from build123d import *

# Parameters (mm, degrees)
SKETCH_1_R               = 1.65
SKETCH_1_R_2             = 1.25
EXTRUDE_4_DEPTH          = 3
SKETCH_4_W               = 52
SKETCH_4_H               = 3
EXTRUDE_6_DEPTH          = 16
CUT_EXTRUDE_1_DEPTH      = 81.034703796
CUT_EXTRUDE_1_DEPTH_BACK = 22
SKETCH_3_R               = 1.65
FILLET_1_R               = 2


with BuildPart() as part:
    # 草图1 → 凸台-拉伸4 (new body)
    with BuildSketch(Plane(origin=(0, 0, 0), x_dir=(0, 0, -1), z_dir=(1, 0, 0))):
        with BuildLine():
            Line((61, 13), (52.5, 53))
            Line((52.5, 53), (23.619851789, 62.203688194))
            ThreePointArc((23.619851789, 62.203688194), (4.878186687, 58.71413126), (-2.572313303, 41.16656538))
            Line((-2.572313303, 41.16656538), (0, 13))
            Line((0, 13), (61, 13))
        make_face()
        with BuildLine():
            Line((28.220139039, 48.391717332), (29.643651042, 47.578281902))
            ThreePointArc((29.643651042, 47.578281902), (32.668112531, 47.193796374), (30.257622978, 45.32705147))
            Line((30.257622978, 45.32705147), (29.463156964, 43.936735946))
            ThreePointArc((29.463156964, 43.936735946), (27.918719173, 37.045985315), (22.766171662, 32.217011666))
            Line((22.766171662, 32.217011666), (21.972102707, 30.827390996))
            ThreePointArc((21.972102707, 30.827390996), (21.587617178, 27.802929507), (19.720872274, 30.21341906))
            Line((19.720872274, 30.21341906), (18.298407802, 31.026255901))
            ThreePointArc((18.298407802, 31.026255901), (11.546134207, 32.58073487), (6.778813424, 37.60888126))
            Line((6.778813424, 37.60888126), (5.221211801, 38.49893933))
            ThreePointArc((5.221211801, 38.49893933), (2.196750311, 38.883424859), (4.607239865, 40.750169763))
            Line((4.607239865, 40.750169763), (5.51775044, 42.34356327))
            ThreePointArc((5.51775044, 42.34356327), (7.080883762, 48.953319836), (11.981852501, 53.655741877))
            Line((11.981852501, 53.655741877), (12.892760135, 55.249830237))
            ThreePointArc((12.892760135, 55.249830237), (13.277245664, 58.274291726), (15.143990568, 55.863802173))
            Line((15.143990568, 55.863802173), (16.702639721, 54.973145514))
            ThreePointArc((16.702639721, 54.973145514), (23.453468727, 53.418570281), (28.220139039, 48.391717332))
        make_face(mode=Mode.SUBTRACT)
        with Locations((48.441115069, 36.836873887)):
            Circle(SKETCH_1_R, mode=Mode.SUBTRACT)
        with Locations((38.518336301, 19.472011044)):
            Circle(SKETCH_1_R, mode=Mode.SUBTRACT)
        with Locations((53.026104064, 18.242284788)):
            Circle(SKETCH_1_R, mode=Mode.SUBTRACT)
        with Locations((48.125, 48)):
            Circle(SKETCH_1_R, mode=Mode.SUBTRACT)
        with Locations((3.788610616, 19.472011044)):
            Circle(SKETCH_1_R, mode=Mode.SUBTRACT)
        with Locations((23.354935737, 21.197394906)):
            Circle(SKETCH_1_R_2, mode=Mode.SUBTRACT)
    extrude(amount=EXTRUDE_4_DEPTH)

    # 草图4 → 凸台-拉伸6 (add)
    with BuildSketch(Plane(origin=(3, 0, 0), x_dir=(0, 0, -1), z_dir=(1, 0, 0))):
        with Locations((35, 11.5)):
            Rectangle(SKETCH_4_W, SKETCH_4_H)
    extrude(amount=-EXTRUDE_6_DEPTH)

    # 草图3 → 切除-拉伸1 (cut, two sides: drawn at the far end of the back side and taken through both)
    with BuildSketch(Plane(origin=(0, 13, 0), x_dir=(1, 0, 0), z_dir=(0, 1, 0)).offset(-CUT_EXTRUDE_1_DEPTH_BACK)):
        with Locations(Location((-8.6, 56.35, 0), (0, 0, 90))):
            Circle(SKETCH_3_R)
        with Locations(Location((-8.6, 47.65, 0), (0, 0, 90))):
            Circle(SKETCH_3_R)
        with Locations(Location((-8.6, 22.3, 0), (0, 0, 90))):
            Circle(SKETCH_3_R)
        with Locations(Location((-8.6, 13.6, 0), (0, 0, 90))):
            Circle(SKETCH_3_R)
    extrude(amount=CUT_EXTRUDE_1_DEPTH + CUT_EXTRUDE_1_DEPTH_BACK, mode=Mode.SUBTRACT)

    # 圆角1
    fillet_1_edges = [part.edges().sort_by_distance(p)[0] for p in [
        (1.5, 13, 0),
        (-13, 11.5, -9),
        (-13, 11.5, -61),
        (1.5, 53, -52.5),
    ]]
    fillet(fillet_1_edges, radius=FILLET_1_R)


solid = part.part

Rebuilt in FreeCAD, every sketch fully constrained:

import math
import FreeCAD as App
import Part
import Sketcher

V = App.Vector
Q = App.Units.Quantity


def edges_at(feature, points):
    """Names of the edges that pass closest to the given points."""
    edges = feature.Shape.Edges
    near = lambda p: min(range(len(edges)), key=lambda i: edges[i].distToShape(Part.Vertex(*p))[0])
    return sorted({f"Edge{near(p) + 1}" for p in points})


def add_polygon(sketch, points):
    """Adds a closed chain of lines whose ends are joined by coincident constraints."""
    first, n = sketch.GeometryCount, len(points)
    for a, b in zip(points, points[1:] + points[:1]):
        sketch.addGeometry(Part.LineSegment(App.Vector(*a, 0), App.Vector(*b, 0)), False)
    for i in range(n):
        sketch.addConstraint(Sketcher.Constraint("Coincident", first + i, 2, first + (i + 1) % n, 1))

doc = App.newDocument("Part")
body = doc.addObject("PartDesign::Body", "Body")

sketch1 = body.newObject("Sketcher::SketchObject", "Sketch")
sketch1.AttachmentSupport = (doc.getObject("YZ_Plane"), [""])
sketch1.MapMode = "FlatFace"
sketch1.addGeometry([
    Part.LineSegment(V(13, -61, 0), V(53, -52.5, 0)),
    Part.LineSegment(V(53, -52.5, 0), V(62.203688, -23.619852, 0)),
    Part.ArcOfCircle(Part.Circle(V(42.999653, -17.499801, 0), V(0, 0, 1), 20.155644), math.radians(-17.676333), math.radians(95.218066)),
    Part.LineSegment(V(41.166565, 2.572313, 0), V(13, 0, 0)),
    Part.LineSegment(V(13, 0, 0), V(13, -61, 0)),
    Part.Circle(V(19.472011, -3.788611, 0), V(0, 0, 1), 1.65),
    Part.Circle(V(21.197395, -23.354936, 0), V(0, 0, 1), 1.25),
    Part.Circle(V(19.472011, -38.518336, 0), V(0, 0, 1), 1.65),
    Part.Circle(V(18.242285, -53.026104, 0), V(0, 0, 1), 1.65),
    Part.Circle(V(36.836874, -48.441115, 0), V(0, 0, 1), 1.65),
    Part.ArcOfCircle(Part.Circle(V(42.999653, -17.499801, 0), V(0, 0, 1), 12), math.radians(-63.298735), math.radians(3.808972)),
    Part.LineSegment(V(48.391717, -28.220139, 0), V(47.578282, -29.643651, 0)),
    Part.ArcOfCircle(Part.Circle(V(46.759653, -31.076252, 0), V(0, 0, 1), 1.65), math.radians(150.255119), math.radians(420.255119)),
    Part.LineSegment(V(45.327051, -30.257623, 0), V(43.936736, -29.463157, 0)),
    Part.ArcOfCircle(Part.Circle(V(42.999653, -17.499801, 0), V(0, 0, 1), 12), math.radians(-153.968566), math.radians(-85.521197)),
    Part.LineSegment(V(32.217012, -22.766172, 0), V(30.827391, -21.972103, 0)),
    Part.ArcOfCircle(Part.Circle(V(29.39479, -21.153473, 0), V(0, 0, 1), 1.65), math.radians(60.255119), math.radians(330.255119)),
    Part.LineSegment(V(30.213419, -19.720872, 0), V(31.026256, -18.298408, 0)),
    Part.ArcOfCircle(Part.Circle(V(42.999653, -17.499801, 0), V(0, 0, 1), 12), math.radians(116.694353), math.radians(183.815885)),
    Part.LineSegment(V(37.608881, -6.778813, 0), V(38.498939, -5.221212, 0)),
    Part.ArcOfCircle(Part.Circle(V(39.317569, -3.788611, 0), V(0, 0, 1), 1.65), math.radians(-29.744881), math.radians(240.255119)),
    Part.LineSegment(V(40.75017, -4.60724, 0), V(42.343563, -5.51775, 0)),
    Part.ArcOfCircle(Part.Circle(V(42.999653, -17.499801, 0), V(0, 0, 1), 12), math.radians(27.376079), math.radians(93.134158)),
    Part.LineSegment(V(53.655742, -11.981853, 0), V(55.24983, -12.89276, 0)),
    Part.ArcOfCircle(Part.Circle(V(56.682431, -13.711389, 0), V(0, 0, 1), 1.65), math.radians(-119.744881), math.radians(150.255119)),
    Part.LineSegment(V(55.863802, -15.143991, 0), V(54.973146, -16.70264, 0)),
    Part.Circle(V(48, -48.125, 0), V(0, 0, 1), 1.65),
], False)
sketch1.addConstraint([
    Sketcher.Constraint("Coincident", 0, 2, 1, 1),
    Sketcher.Constraint("Tangent", 1, 2, 2, 1),
    Sketcher.Constraint("Tangent", 2, 2, 3, 1),
    Sketcher.Constraint("Coincident", 3, 2, 4, 1),
    Sketcher.Constraint("Coincident", 4, 2, 0, 1),
    Sketcher.Constraint("Coincident", 10, 1, 11, 1),
    Sketcher.Constraint("Coincident", 11, 2, 12, 2),
    Sketcher.Constraint("Coincident", 12, 1, 13, 1),
    Sketcher.Constraint("Coincident", 13, 2, 14, 2),
    Sketcher.Constraint("Coincident", 14, 1, 15, 1),
    Sketcher.Constraint("Coincident", 15, 2, 16, 2),
    Sketcher.Constraint("Coincident", 16, 1, 17, 1),
    Sketcher.Constraint("Coincident", 17, 2, 18, 2),
    Sketcher.Constraint("Coincident", 18, 1, 19, 1),
    Sketcher.Constraint("Coincident", 19, 2, 20, 2),
    Sketcher.Constraint("Coincident", 20, 1, 21, 1),
    Sketcher.Constraint("Coincident", 21, 2, 22, 2),
    Sketcher.Constraint("Coincident", 22, 1, 23, 1),
    Sketcher.Constraint("Coincident", 23, 2, 24, 2),
    Sketcher.Constraint("Coincident", 24, 1, 25, 1),
    Sketcher.Constraint("Coincident", 25, 2, 10, 2),
    Sketcher.Constraint("Vertical", 4),
    Sketcher.Constraint("Coincident", 10, 3, 2, 3),
    Sketcher.Constraint("Coincident", 14, 3, 2, 3),
    Sketcher.Constraint("Coincident", 18, 3, 2, 3),
    Sketcher.Constraint("Coincident", 22, 3, 2, 3),
    Sketcher.Constraint("Equal", 5, 7),
    Sketcher.Constraint("Equal", 7, 8),
    Sketcher.Constraint("Equal", 8, 9),
    Sketcher.Constraint("Equal", 9, 12),
    Sketcher.Constraint("Equal", 10, 14),
    Sketcher.Constraint("Equal", 12, 16),
    Sketcher.Constraint("Equal", 14, 18),
    Sketcher.Constraint("Equal", 16, 20),
    Sketcher.Constraint("Equal", 18, 22),
    Sketcher.Constraint("Equal", 20, 24),
    Sketcher.Constraint("Equal", 24, 26),
    Sketcher.Constraint("PointOnObject", 3, 2, -1),
    Sketcher.Constraint("Perpendicular", 11, 13),
    Sketcher.Constraint("Parallel", 13, 15),
    Sketcher.Constraint("Perpendicular", 15, 17),
    Sketcher.Constraint("Parallel", 17, 19),
    Sketcher.Constraint("Perpendicular", 19, 21),
    Sketcher.Constraint("Parallel", 21, 23),
    Sketcher.Constraint("Perpendicular", 23, 25),
    Sketcher.Constraint("Horizontal", 5, 3, 20, 3),
    Sketcher.Constraint("Vertical", 5, 3, 7, 3),
    Sketcher.Constraint("Radius", 10, Q("12 mm")),
    Sketcher.Constraint("Diameter", 5, Q("3.3 mm")),
    Sketcher.Constraint("Diameter", 6, Q("2.5 mm")),
    Sketcher.Constraint("DistanceY", 4, 2, 4, 1, Q("61 mm")),
    Sketcher.Constraint("DistanceX", -1, 1, 26, 3, Q("48 mm")),
    Sketcher.Constraint("DistanceX", -1, 1, 0, 2, Q("53 mm")),
    Sketcher.Constraint("DistanceX", -1, 1, 3, 2, Q("13 mm")),
    Sketcher.Constraint("DistanceY", 0, 2, -1, 1, Q("52.5 mm")),
    Sketcher.Constraint("DistanceX", 10, 3, 12, 3, Q("3.76 mm")),
    Sketcher.Constraint("DistanceY", 26, 3, -1, 1, Q("48.125 mm")),
    Sketcher.Constraint("Radius", 2, Q("20.155644 mm")),
    Sketcher.Constraint("DistanceY", 2, 3, -1, 1, Q("17.499801 mm")),
    Sketcher.Constraint("DistanceY", 7, 3, 6, 3, Q("15.163401 mm")),
    Sketcher.Constraint("DistanceY", 12, 3, 1, 2, Q("7.4564 mm")),
    Sketcher.Constraint("DistanceY", 12, 3, 11, 2, Q("1.432601 mm")),
    Sketcher.Constraint("DistanceX", 12, 1, 12, 3, Q("1.432601 mm")),
    Sketcher.Constraint("DistanceY", 14, 1, 16, 3, Q("1.612698 mm")),
    Sketcher.Constraint("DistanceX", 16, 3, 15, 2, Q("1.432601 mm")),
    Sketcher.Constraint("DistanceY", 15, 2, 14, 3, Q("4.472301 mm")),
    Sketcher.Constraint("DistanceY", 16, 3, 16, 1, Q("1.432601 mm")),
    Sketcher.Constraint("DistanceY", 19, 2, 20, 3, Q("1.432601 mm")),
    Sketcher.Constraint("DistanceY", 18, 1, 19, 2, Q("1.557602 mm")),
    Sketcher.Constraint("DistanceX", 20, 3, 20, 1, Q("1.432601 mm")),
    Sketcher.Constraint("DistanceX", 23, 2, 24, 3, Q("1.432601 mm")),
    Sketcher.Constraint("DistanceY", 24, 1, 24, 3, Q("1.432601 mm")),
    Sketcher.Constraint("Distance", 3, Q("28.28378 mm")),
    Sketcher.Constraint("Distance", 11, Q("1.639532 mm")),
    Sketcher.Constraint("DistanceX", -1, 1, 5, 3, Q("19.472011 mm")),
    Sketcher.Constraint("DistanceY", 5, 3, -1, 1, Q("3.788611 mm")),
    Sketcher.Constraint("DistanceX", -1, 1, 24, 3, Q("56.682431 mm")),
    Sketcher.Constraint("DistanceY", 24, 3, -1, 1, Q("13.711389 mm")),
    Sketcher.Constraint("DistanceX", 8, 3, 6, 3, Q("2.95511 mm")),
    Sketcher.Constraint("DistanceY", 8, 3, 6, 3, Q("29.671168 mm")),
    Sketcher.Constraint("DistanceX", 8, 3, 9, 3, Q("18.594589 mm")),
    Sketcher.Constraint("DistanceY", 8, 3, 9, 3, Q("4.584989 mm")),
    Sketcher.Constraint("DistanceX", 9, 3, 2, 3, Q("6.162779 mm")),
    Sketcher.Constraint("DistanceY", 6, 3, -1, 1, Q("23.354936 mm")),
])
pad1 = body.newObject("PartDesign::Pad", "Pad")
pad1.Profile = sketch1
pad1.Length = 3

sketch2 = body.newObject("Sketcher::SketchObject", "Sketch001")
sketch2.AttachmentSupport = (doc.getObject("YZ_Plane"), [""])
sketch2.MapMode = "FlatFace"
sketch2.AttachmentOffset = App.Placement(V(0, 0, 3), App.Rotation())
add_polygon(sketch2, [(13, -9), (10, -9), (10, -61), (13, -61)])
sketch2.addConstraint([
    Sketcher.Constraint("Horizontal", 0),
    Sketcher.Constraint("Vertical", 1),
    Sketcher.Constraint("Horizontal", 2),
    Sketcher.Constraint("Vertical", 3),
    Sketcher.Constraint("DistanceX", 0, 2, 0, 1, Q("3 mm")),
    Sketcher.Constraint("DistanceY", 1, 2, 1, 1, Q("52 mm")),
    Sketcher.Constraint("DistanceX", -1, 1, 0, 2, Q("10 mm")),
    Sketcher.Constraint("DistanceY", 0, 2, -1, 1, Q("9 mm")),
])
pad2 = body.newObject("PartDesign::Pad", "Pad001")
pad2.Profile = sketch2
pad2.Length = 16
pad2.Reversed = True

sketch3 = body.newObject("Sketcher::SketchObject", "Sketch002")
sketch3.AttachmentSupport = (doc.getObject("XZ_Plane"), [""])
sketch3.MapMode = "FlatFace"
sketch3.AttachmentOffset = App.Placement(V(0, 0, -13), App.Rotation())
sketch3.addGeometry([
    Part.Circle(V(-8.6, -56.35, 0), V(0, 0, 1), 1.65),
    Part.Circle(V(-8.6, -47.65, 0), V(0, 0, 1), 1.65),
    Part.Circle(V(-8.6, -22.3, 0), V(0, 0, 1), 1.65),
    Part.Circle(V(-8.6, -13.6, 0), V(0, 0, 1), 1.65),
], False)
sketch3.addConstraint([
    Sketcher.Constraint("Equal", 0, 1),
    Sketcher.Constraint("Equal", 1, 2),
    Sketcher.Constraint("Equal", 2, 3),
    Sketcher.Constraint("Vertical", 0, 3, 1, 3),
    Sketcher.Constraint("Vertical", 1, 3, 2, 3),
    Sketcher.Constraint("Vertical", 2, 3, 3, 3),
    Sketcher.Constraint("Diameter", 0, Q("3.3 mm")),
    Sketcher.Constraint("DistanceX", 0, 3, -1, 1, Q("8.6 mm")),
    Sketcher.Constraint("DistanceY", 2, 3, -1, 1, Q("22.3 mm")),
    Sketcher.Constraint("DistanceY", 3, 3, -1, 1, Q("13.6 mm")),
    Sketcher.Constraint("DistanceY", 0, 3, 1, 3, Q("8.7 mm")),
    Sketcher.Constraint("DistanceY", 0, 3, -1, 1, Q("56.35 mm")),
])
pocket1 = body.newObject("PartDesign::Pocket", "Pocket")
pocket1.Profile = sketch3
pocket1.Type = "ThroughAll"
pocket1.Midplane = True
doc.recompute()

fillet = body.newObject("PartDesign::Fillet", "Fillet")
fillet.Base = (pocket1, edges_at(pocket1, [
    (1.5, 13, 0),
    (-13, 11.5, -9),
    (-13, 11.5, -61),
    (1.5, 53, -52.5),
]))
fillet.Radius = 2

doc.recompute()
